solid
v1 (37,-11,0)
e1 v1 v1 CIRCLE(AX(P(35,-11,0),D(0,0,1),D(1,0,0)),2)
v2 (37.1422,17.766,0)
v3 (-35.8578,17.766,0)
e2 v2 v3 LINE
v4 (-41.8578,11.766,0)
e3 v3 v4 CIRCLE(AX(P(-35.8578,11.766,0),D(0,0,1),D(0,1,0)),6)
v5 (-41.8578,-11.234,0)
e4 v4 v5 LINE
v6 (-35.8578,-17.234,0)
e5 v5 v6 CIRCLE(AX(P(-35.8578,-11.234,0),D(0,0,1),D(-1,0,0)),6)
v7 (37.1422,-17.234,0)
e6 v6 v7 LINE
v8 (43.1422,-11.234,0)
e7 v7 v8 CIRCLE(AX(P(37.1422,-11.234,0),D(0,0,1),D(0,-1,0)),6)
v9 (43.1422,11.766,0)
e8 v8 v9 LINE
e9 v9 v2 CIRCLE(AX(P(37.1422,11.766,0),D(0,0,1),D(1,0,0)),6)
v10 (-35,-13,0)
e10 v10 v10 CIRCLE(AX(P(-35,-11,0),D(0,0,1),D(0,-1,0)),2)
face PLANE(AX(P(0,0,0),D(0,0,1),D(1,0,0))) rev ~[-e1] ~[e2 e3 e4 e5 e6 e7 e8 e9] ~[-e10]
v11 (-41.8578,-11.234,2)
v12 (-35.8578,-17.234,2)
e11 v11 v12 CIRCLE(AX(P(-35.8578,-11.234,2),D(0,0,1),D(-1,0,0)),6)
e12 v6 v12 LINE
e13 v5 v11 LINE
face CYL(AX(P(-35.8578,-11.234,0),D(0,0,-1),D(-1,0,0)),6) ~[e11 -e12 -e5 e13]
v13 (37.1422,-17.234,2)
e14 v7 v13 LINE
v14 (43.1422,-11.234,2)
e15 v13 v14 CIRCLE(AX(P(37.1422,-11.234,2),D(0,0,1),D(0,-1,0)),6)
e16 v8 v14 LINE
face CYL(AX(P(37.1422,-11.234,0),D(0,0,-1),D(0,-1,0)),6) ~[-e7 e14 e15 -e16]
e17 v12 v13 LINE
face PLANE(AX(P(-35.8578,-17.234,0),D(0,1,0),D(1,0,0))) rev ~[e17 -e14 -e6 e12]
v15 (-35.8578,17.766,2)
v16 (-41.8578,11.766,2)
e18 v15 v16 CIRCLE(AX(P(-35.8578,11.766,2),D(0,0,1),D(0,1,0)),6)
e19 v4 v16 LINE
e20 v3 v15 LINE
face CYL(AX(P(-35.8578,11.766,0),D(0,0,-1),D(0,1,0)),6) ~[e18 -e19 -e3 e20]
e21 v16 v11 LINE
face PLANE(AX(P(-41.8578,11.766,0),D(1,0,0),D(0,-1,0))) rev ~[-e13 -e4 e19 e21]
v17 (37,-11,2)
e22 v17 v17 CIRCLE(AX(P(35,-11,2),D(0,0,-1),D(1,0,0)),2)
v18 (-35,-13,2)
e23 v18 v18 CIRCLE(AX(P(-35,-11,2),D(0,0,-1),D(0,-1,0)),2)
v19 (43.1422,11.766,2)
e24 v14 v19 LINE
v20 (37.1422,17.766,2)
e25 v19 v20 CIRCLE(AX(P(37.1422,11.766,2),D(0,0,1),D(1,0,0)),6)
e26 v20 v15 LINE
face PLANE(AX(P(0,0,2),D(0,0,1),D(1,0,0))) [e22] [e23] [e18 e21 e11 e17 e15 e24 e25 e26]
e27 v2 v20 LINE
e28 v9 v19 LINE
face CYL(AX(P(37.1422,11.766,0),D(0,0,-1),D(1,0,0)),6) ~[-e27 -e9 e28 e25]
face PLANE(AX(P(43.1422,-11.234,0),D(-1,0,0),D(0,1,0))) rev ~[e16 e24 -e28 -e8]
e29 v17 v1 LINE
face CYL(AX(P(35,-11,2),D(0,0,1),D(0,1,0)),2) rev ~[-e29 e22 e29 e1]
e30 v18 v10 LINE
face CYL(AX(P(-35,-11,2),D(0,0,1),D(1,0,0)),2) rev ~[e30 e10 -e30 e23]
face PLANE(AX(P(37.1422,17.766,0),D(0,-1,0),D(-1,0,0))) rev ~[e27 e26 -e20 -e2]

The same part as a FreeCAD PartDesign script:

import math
import FreeCAD as App
import Part
import Sketcher
from FreeCAD import Vector

doc = App.newDocument("Part")
params = doc.addObject("Spreadsheet::Sheet", "Params")
for row, (alias, value) in enumerate([
    ("sketch1_radius", "6 mm"),
    ("sketch1_width", "73 mm"),
    ("sketch1_height", "23 mm"),
    ("pad1_length", "2 mm"),
    ("sketch2_diameter", "4 mm"),
    ("pocket1_length", "2 mm"),
], start=1):
    params.set(f"A{row}", alias)
    params.set(f"B{row}", "=" + value)
    params.setAlias(f"B{row}", alias)

body = doc.addObject("PartDesign::Body", "Body")

sketch1 = body.newObject("Sketcher::SketchObject", "Sketch")
sketch1.AttachmentSupport = (doc.getObject("XY_Plane"), [""])
sketch1.MapMode = "FlatFace"
sketch1.addGeometry(Part.ArcOfCircle(Part.Circle(Vector(-36, -11, 0), Vector(0, 0, 1), 6), math.radians(180), math.radians(270)), False)
sketch1.addGeometry(Part.LineSegment(Vector(-36, -17, 0), Vector(37, -17, 0)), False)
sketch1.addGeometry(Part.ArcOfCircle(Part.Circle(Vector(37, -11, 0), Vector(0, 0, 1), 6), math.radians(-90), math.radians(0)), False)
sketch1.addGeometry(Part.LineSegment(Vector(43, -11, 0), Vector(43, 12, 0)), False)
sketch1.addGeometry(Part.ArcOfCircle(Part.Circle(Vector(37, 12, 0), Vector(0, 0, 1), 6), math.radians(0), math.radians(90)), False)
sketch1.addGeometry(Part.LineSegment(Vector(37, 18, 0), Vector(-36, 18, 0)), False)
sketch1.addGeometry(Part.ArcOfCircle(Part.Circle(Vector(-36, 12, 0), Vector(0, 0, 1), 6), math.radians(90), math.radians(180)), False)
sketch1.addGeometry(Part.LineSegment(Vector(-42, 12, 0), Vector(-42, -11, 0)), False)
sketch1.addConstraint(Sketcher.Constraint("Tangent", 0, 2, 1, 1))
sketch1.addConstraint(Sketcher.Constraint("Tangent", 1, 2, 2, 1))
sketch1.addConstraint(Sketcher.Constraint("Tangent", 2, 2, 3, 1))
sketch1.addConstraint(Sketcher.Constraint("Tangent", 3, 2, 4, 1))
sketch1.addConstraint(Sketcher.Constraint("Tangent", 4, 2, 5, 1))
sketch1.addConstraint(Sketcher.Constraint("Tangent", 5, 2, 6, 1))
sketch1.addConstraint(Sketcher.Constraint("Tangent", 6, 2, 7, 1))
sketch1.addConstraint(Sketcher.Constraint("Tangent", 7, 2, 0, 1))
sketch1.addConstraint(Sketcher.Constraint("Horizontal", 1))
sketch1.addConstraint(Sketcher.Constraint("Vertical", 3))
sketch1.addConstraint(Sketcher.Constraint("Horizontal", 5))
sketch1.addConstraint(Sketcher.Constraint("Vertical", 7))
sketch1.addConstraint(Sketcher.Constraint("Equal", 0, 2))
sketch1.addConstraint(Sketcher.Constraint("Equal", 2, 4))
sketch1.addConstraint(Sketcher.Constraint("Equal", 4, 6))
sketch1.addConstraint(Sketcher.Constraint("Radius", 0, 6.0))
sketch1.addConstraint(Sketcher.Constraint("DistanceX", 1, 1, 1, 2, 73.0))
sketch1.addConstraint(Sketcher.Constraint("DistanceY", 3, 1, 3, 2, 23.0))
sketch1.addConstraint(Sketcher.Constraint("DistanceY", 0, 3, -1, 1, 11.234))
sketch1.addConstraint(Sketcher.Constraint("DistanceX", 0, 3, -1, 1, 35.8578))
sketch1.setExpression("Constraints[15]", "Params.sketch1_radius")
sketch1.setExpression("Constraints[16]", "Params.sketch1_width")
sketch1.setExpression("Constraints[17]", "Params.sketch1_height")
pad1 = body.newObject("PartDesign::Pad", "Pad")
pad1.Profile = sketch1
pad1.setExpression("Length", "Params.pad1_length")

sketch2 = body.newObject("Sketcher::SketchObject", "Sketch001")
sketch2.AttachmentSupport = (doc.getObject("XY_Plane"), [""])
sketch2.MapMode = "FlatFace"
sketch2.AttachmentOffset = App.Placement(Vector(0, 0, 2), App.Rotation())
sketch2.addGeometry(Part.Circle(Vector(-35, -11, 0), Vector(0, 0, 1), 2), False)
sketch2.addGeometry(Part.Circle(Vector(35, -11, 0), Vector(0, 0, 1), 2), False)
sketch2.addConstraint(Sketcher.Constraint("Equal", 0, 1))
sketch2.addConstraint(Sketcher.Constraint("Symmetric", 0, 3, 1, 3, -2))
sketch2.addConstraint(Sketcher.Constraint("Diameter", 0, 4.0))
sketch2.addConstraint(Sketcher.Constraint("DistanceX", 0, 3, -1, 1, 35.0))
sketch2.addConstraint(Sketcher.Constraint("DistanceY", 0, 3, -1, 1, 11.0))
sketch2.setExpression("Constraints[2]", "Params.sketch2_diameter")
pocket1 = body.newObject("PartDesign::Pocket", "Pocket")
pocket1.Profile = sketch2
pocket1.setExpression("Length", "Params.pocket1_length")

doc.recompute()
